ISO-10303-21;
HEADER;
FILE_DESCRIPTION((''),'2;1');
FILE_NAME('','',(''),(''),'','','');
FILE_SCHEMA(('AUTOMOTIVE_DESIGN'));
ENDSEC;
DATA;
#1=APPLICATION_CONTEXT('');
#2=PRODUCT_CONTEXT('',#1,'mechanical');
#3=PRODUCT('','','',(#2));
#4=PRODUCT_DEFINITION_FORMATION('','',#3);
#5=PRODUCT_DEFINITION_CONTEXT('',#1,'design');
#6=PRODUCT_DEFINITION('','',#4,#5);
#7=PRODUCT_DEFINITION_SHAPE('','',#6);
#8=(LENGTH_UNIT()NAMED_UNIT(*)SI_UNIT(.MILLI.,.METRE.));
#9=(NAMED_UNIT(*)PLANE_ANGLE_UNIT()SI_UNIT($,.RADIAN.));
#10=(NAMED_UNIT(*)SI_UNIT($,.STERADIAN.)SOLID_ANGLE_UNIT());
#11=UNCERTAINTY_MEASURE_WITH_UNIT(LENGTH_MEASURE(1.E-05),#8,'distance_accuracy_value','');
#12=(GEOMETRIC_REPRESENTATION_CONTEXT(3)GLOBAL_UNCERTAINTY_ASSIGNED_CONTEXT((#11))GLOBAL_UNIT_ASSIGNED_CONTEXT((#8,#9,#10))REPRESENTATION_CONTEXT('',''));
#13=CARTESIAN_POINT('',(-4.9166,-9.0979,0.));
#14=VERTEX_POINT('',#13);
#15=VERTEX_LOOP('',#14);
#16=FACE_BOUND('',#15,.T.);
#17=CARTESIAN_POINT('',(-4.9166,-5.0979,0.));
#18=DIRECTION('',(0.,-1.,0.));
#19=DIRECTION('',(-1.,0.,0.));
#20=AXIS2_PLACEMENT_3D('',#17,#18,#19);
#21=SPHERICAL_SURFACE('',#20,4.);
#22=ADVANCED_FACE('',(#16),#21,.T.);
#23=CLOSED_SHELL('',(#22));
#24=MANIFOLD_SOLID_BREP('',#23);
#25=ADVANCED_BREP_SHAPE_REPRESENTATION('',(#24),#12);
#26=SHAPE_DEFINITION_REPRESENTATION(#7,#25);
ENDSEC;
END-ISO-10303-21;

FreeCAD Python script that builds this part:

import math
import FreeCAD as App
import Part
import Sketcher
from FreeCAD import Vector

doc = App.newDocument("Part")
body = doc.addObject("PartDesign::Body", "Body")

# Sketch on XY plane
sketch1 = body.newObject("Sketcher::SketchObject", "Sketch")
sketch1.AttachmentSupport = (doc.getObject("XY_Plane"), [""])
sketch1.MapMode = "FlatFace"
sketch1.addGeometry([
    Part.LineSegment(Vector(-4.9166, -9.0979, 0), Vector(-4.9166, -1.0979, 0)),
    Part.ArcOfCircle(Part.Circle(Vector(-4.9166, -5.0979, 0), Vector(0, 0, 1), 4), math.radians(90), math.radians(270)),
], False)
sketch1.addGeometry(Part.LineSegment(Vector(-4.9166, -1.0979, 0), Vector(-4.9166, -9.0979, 0)), True)  # axis
sketch1.addConstraint([
    Sketcher.Constraint("Coincident", 0, 1, 1, 2),
    Sketcher.Constraint("Coincident", 1, 1, 0, 2),
    Sketcher.Constraint("Vertical", 0),
    Sketcher.Constraint("Vertical", 2),
    Sketcher.Constraint("Coincident", 2, 1, 1, 1),
    Sketcher.Constraint("Vertical", 1, 3, 0, 1),
    Sketcher.Constraint("Equal", 0, 2),
    Sketcher.Constraint("Radius", 1, 4.0),
    Sketcher.Constraint("DistanceY", 1, 3, -1, 1, 5.098),
    Sketcher.Constraint("DistanceX", 1, 3, -1, 1, 4.9166),
])
revolution = body.newObject("PartDesign::Revolution", "Revolution")
revolution.Profile = sketch1
revolution.ReferenceAxis = (sketch1, ["Axis0"])
revolution.Angle = 360

doc.recompute()
